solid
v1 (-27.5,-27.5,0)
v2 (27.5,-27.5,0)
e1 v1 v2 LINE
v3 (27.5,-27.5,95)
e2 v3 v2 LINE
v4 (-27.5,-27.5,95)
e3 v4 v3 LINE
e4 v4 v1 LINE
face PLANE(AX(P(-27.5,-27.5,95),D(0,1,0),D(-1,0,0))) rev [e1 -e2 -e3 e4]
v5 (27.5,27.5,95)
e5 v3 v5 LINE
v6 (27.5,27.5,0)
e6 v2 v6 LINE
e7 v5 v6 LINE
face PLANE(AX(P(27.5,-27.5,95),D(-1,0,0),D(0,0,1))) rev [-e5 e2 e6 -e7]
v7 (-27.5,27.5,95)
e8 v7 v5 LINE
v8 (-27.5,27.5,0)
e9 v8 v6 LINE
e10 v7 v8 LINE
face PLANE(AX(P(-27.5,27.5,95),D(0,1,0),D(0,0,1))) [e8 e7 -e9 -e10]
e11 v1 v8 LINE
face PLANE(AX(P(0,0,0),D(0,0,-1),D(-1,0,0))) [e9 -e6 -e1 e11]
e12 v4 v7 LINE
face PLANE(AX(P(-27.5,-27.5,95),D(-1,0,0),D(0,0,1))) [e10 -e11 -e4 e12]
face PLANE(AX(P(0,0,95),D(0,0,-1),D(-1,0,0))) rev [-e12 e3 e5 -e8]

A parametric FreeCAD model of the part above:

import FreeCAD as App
import Part
import Sketcher

V = App.Vector

doc = App.newDocument("Part")
body = doc.addObject("PartDesign::Body", "Body")

# Sketch on XY plane
sketch1 = body.newObject("Sketcher::SketchObject", "Sketch")
sketch1.AttachmentSupport = (doc.getObject("XY_Plane"), [""])
sketch1.MapMode = "FlatFace"
sketch1.addGeometry(Part.LineSegment(V(-28, 28, 0), V(-28, -28, 0)), False)
sketch1.addGeometry(Part.LineSegment(V(-28, -28, 0), V(28, -28, 0)), False)
sketch1.addGeometry(Part.LineSegment(V(28, -28, 0), V(28, 28, 0)), False)
sketch1.addGeometry(Part.LineSegment(V(28, 28, 0), V(-28, 28, 0)), False)
sketch1.addConstraint(Sketcher.Constraint("Coincident", 0, 2, 1, 1))
sketch1.addConstraint(Sketcher.Constraint("Coincident", 1, 2, 2, 1))
sketch1.addConstraint(Sketcher.Constraint("Coincident", 2, 2, 3, 1))
sketch1.addConstraint(Sketcher.Constraint("Coincident", 3, 2, 0, 1))
sketch1.addConstraint(Sketcher.Constraint("Vertical", 0))
sketch1.addConstraint(Sketcher.Constraint("Horizontal", 1))
sketch1.addConstraint(Sketcher.Constraint("Vertical", 2))
sketch1.addConstraint(Sketcher.Constraint("Horizontal", 3))
sketch1.addConstraint(Sketcher.Constraint("Symmetric", 0, 2, 2, 2, -1, 1))
sketch1.addConstraint(Sketcher.Constraint("Equal", 3, 0))
sketch1.addConstraint(Sketcher.Constraint("DistanceX", 1, 1, 1, 2, 55.0))
pad1 = body.newObject("PartDesign::Pad", "Pad")
pad1.Profile = sketch1
pad1.Length = 95

doc.recompute()
